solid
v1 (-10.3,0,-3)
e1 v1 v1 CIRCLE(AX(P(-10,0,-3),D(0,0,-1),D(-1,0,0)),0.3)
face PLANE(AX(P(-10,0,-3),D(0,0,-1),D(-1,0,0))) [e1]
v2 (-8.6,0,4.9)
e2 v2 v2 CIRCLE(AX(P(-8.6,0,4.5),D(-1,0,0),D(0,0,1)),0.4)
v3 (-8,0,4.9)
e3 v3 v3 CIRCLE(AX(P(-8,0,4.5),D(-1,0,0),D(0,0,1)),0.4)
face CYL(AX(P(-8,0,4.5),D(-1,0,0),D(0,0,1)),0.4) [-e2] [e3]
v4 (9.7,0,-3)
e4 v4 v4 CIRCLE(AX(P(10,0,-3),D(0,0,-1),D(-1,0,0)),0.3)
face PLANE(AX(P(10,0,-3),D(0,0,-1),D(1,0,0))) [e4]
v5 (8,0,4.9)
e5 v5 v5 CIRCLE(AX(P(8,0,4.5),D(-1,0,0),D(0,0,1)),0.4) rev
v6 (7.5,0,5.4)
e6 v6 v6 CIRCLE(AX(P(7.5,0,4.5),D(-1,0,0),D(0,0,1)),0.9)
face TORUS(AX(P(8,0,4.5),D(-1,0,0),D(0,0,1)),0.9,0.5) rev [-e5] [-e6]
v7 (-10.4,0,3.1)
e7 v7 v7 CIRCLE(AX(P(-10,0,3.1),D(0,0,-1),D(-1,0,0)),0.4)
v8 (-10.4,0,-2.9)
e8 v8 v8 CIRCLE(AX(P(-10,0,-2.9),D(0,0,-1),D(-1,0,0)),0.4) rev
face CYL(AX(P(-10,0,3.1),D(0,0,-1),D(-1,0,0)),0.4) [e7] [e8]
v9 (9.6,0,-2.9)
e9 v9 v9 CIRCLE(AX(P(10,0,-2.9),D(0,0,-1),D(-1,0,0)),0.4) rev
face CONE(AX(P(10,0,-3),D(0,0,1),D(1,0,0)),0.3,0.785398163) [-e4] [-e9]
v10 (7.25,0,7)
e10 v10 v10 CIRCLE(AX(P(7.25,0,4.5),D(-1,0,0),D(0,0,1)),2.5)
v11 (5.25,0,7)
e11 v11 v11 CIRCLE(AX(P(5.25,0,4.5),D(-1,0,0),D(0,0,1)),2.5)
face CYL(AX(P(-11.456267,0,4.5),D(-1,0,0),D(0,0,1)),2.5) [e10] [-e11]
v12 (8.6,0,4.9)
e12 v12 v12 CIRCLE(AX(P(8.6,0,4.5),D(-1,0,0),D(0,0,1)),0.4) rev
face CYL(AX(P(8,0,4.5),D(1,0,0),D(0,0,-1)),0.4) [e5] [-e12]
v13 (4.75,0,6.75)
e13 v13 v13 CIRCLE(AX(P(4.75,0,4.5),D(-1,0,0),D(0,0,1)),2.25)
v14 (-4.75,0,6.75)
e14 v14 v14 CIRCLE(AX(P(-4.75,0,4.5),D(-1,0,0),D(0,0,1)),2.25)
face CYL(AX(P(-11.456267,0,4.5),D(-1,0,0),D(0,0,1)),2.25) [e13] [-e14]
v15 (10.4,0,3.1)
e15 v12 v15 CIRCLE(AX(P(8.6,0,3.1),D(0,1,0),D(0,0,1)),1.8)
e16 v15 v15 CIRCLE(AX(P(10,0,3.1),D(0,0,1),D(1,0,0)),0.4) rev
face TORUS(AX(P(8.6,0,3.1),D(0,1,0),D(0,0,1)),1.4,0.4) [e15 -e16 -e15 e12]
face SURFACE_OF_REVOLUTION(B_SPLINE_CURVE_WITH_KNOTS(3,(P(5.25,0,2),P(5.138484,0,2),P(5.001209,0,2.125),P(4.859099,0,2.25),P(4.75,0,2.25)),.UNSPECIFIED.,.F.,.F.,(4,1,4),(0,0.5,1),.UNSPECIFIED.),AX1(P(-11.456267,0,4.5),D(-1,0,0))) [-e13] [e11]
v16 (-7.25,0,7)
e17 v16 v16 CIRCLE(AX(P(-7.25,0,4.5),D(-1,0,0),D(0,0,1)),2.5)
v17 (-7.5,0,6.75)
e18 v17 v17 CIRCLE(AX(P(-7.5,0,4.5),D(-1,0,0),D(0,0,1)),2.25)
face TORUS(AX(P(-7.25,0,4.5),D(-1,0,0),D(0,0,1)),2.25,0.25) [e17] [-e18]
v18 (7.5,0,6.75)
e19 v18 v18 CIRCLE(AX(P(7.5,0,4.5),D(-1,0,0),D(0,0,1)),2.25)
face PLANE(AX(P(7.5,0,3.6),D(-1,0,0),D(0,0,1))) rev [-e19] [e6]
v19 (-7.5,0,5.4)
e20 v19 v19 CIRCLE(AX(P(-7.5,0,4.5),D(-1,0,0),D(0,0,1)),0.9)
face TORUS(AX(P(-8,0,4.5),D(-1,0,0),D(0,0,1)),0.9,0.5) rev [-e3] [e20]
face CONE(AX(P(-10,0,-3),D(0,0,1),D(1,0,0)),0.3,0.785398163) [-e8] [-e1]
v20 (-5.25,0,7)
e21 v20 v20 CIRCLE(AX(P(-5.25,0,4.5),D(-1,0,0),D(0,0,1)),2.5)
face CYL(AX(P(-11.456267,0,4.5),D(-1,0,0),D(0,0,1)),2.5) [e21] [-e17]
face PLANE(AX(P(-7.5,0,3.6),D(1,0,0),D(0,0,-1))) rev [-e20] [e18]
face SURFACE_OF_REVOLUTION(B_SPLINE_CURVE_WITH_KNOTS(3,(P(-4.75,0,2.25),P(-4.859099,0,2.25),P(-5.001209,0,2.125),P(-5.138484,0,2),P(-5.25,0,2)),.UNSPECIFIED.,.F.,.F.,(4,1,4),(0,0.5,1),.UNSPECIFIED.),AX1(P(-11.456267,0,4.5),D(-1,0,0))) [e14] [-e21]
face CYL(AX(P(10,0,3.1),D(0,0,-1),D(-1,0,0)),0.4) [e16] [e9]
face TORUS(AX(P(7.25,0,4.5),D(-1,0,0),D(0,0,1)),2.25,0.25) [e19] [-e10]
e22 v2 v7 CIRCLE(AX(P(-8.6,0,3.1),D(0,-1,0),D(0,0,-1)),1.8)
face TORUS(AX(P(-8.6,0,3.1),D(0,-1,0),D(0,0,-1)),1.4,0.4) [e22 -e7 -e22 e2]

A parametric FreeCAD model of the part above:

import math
import FreeCAD as App
import Part
import Sketcher


def edges_at(feature, points):
    """Names of the edges that pass closest to the given points."""
    edges = feature.Shape.Edges
    near = lambda p: min(range(len(edges)), key=lambda i: edges[i].distToShape(Part.Vertex(*p))[0])
    return sorted({f"Edge{near(p) + 1}" for p in points})

doc = App.newDocument("Part")
params = doc.addObject("Spreadsheet::Sheet", "Params")
for row, (alias, value) in enumerate([
    ("sketch1_radius", "0.5 mm"),
    ("sketch1_radius2", "0.5 mm"),
    ("sketch1_width", "16 mm"),
    ("sketch1_width2", "2 mm"),
    ("sketch1_width3", "2 mm"),
    ("revolution_angle", "360 deg"),
    ("sketch2_diameter", "0.8 mm"),
    ("sketch3_radius", "1.4 mm"),
    ("sketch3_width", "0.6 mm"),
    ("sketch3_height", "6.1 mm"),
    ("chamfer_size", "0.1 mm"),
    ("chamfer2_size", "0.1 mm"),
], start=1):
    params.set(f"A{row}", alias)
    params.set(f"B{row}", "=" + value)
    params.setAlias(f"B{row}", alias)

body = doc.addObject("PartDesign::Body", "Body")

sketch1 = body.newObject("Sketcher::SketchObject", "Sketch")
sketch1.AttachmentSupport = (doc.getObject("XZ_Plane"), [""])
sketch1.MapMode = "FlatFace"
sketch1.addGeometry([
    Part.LineSegment(App.Vector(-8, 4.5, 0), App.Vector(8, 4.5, 0)),
    Part.LineSegment(App.Vector(8, 4.5, 0), App.Vector(8, 4.1, 0)),
    Part.ArcOfCircle(Part.Circle(App.Vector(8, 3.6, 0), App.Vector(0, 0, 1), 0.5), math.radians(90), math.radians(180)),
    Part.LineSegment(App.Vector(7.5, 3.6, 0), App.Vector(7.5, 2.25, 0)),
    Part.ArcOfCircle(Part.Circle(App.Vector(7.25, 2.25, 0), App.Vector(0, 0, 1), 0.25), math.radians(-90), math.radians(0)),
    Part.LineSegment(App.Vector(7.25, 2, 0), App.Vector(5.25, 2, 0)),
    Part.BSplineCurve([App.Vector(5.25, 2, 0), App.Vector(5.138484, 2, 0), App.Vector(5.001209, 2.125, 0), App.Vector(4.859099, 2.25, 0), App.Vector(4.75, 2.25, 0)], [4, 1, 4], [0, 0.5, 1], False, 3, [1, 1, 1, 1, 1], False),
    Part.LineSegment(App.Vector(4.75, 2.25, 0), App.Vector(-4.75, 2.25, 0)),
    Part.BSplineCurve([App.Vector(-5.25, 2, 0), App.Vector(-5.138484, 2, 0), App.Vector(-5.001209, 2.125, 0), App.Vector(-4.859099, 2.25, 0), App.Vector(-4.75, 2.25, 0)], [4, 1, 4], [0, 0.5, 1], False, 3, [1, 1, 1, 1, 1], False),
    Part.LineSegment(App.Vector(-5.25, 2, 0), App.Vector(-7.25, 2, 0)),
    Part.ArcOfCircle(Part.Circle(App.Vector(-7.25, 2.25, 0), App.Vector(0, 0, 1), 0.25), math.radians(-180), math.radians(-90)),
    Part.LineSegment(App.Vector(-7.5, 2.25, 0), App.Vector(-7.5, 3.6, 0)),
    Part.ArcOfCircle(Part.Circle(App.Vector(-8, 3.6, 0), App.Vector(0, 0, 1), 0.5), math.radians(0), math.radians(90)),
    Part.LineSegment(App.Vector(-8, 4.1, 0), App.Vector(-8, 4.5, 0)),
], False)
sketch1.addGeometry(Part.LineSegment(App.Vector(-8, 4.5, 0), App.Vector(8, 4.5, 0)), True)
sketch1.addConstraint([
    Sketcher.Constraint("Block", 6),
    Sketcher.Constraint("Block", 8),
    Sketcher.Constraint("Coincident", 0, 2, 1, 1),
    Sketcher.Constraint("Coincident", 1, 2, 2, 1),
    Sketcher.Constraint("Coincident", 2, 2, 3, 1),
    Sketcher.Constraint("Coincident", 3, 2, 4, 2),
    Sketcher.Constraint("Coincident", 4, 1, 5, 1),
    Sketcher.Constraint("Coincident", 5, 2, 6, 1),
    Sketcher.Constraint("Coincident", 6, 2, 7, 1),
    Sketcher.Constraint("Coincident", 7, 2, 8, 2),
    Sketcher.Constraint("Coincident", 8, 1, 9, 1),
    Sketcher.Constraint("Coincident", 9, 2, 10, 2),
    Sketcher.Constraint("Coincident", 10, 1, 11, 1),
    Sketcher.Constraint("Coincident", 11, 2, 12, 1),
    Sketcher.Constraint("Coincident", 12, 2, 13, 1),
    Sketcher.Constraint("Coincident", 13, 2, 0, 1),
    Sketcher.Constraint("Horizontal", 0),
    Sketcher.Constraint("Vertical", 1),
    Sketcher.Constraint("Vertical", 3),
    Sketcher.Constraint("Horizontal", 5),
    Sketcher.Constraint("Horizontal", 9),
    Sketcher.Constraint("Vertical", 11),
    Sketcher.Constraint("Vertical", 13),
    Sketcher.Constraint("Horizontal", 14),
    Sketcher.Constraint("Coincident", 14, 1, 13, 2),
    Sketcher.Constraint("Radius", 2, 0.5),
    Sketcher.Constraint("Radius", 12, 0.5),
    Sketcher.Constraint("DistanceX", 0, 1, 0, 2, 16.0),
    Sketcher.Constraint("DistanceX", 5, 2, 5, 1, 2.0),
    Sketcher.Constraint("DistanceX", 9, 2, 9, 1, 2.0),
    Sketcher.Constraint("DistanceX", 14, 1, 14, 2, 16.0),
    Sketcher.Constraint("Radius", 4, 0.25),
    Sketcher.Constraint("Radius", 10, 0.25),
    Sketcher.Constraint("DistanceY", 1, 2, 1, 1, 0.4),
    Sketcher.Constraint("DistanceY", 13, 1, 13, 2, 0.4),
    Sketcher.Constraint("DistanceX", -1, 1, 2, 3, 8.0),
    Sketcher.Constraint("DistanceX", 12, 3, -1, 1, 8.0),
    Sketcher.Constraint("DistanceX", -1, 1, 0, 2, 8.0),
    Sketcher.Constraint("DistanceY", 3, 2, 3, 1, 1.35),
    Sketcher.Constraint("DistanceY", 11, 1, 11, 2, 1.35),
    Sketcher.Constraint("DistanceY", -1, 1, 2, 3, 3.6),
    Sketcher.Constraint("DistanceY", -1, 1, 2, 2, 3.6),
    Sketcher.Constraint("DistanceY", -1, 1, 11, 2, 3.6),
])
sketch1.setExpression("Constraints[25]", "Params.sketch1_radius")
sketch1.setExpression("Constraints[26]", "Params.sketch1_radius2")
sketch1.setExpression("Constraints[27]", "Params.sketch1_width")
sketch1.setExpression("Constraints[28]", "Params.sketch1_width2")
sketch1.setExpression("Constraints[29]", "Params.sketch1_width3")
revolution = body.newObject("PartDesign::Revolution", "Revolution")
revolution.Profile = sketch1
revolution.ReferenceAxis = (sketch1, ["Axis0"])
revolution.setExpression("Angle", "Params.revolution_angle")

sketch2 = body.newObject("Sketcher::SketchObject", "Sketch001")
sketch2.AttachmentSupport = (doc.getObject("YZ_Plane"), [""])
sketch2.MapMode = "FlatFace"
sketch2.AttachmentOffset = App.Placement(App.Vector(0, 0, -8), App.Rotation())
sketch2.addGeometry(Part.Circle(App.Vector(0, 4.5, 0), App.Vector(0, 0, 1), 0.4), False)
sketch2.addConstraint([
    Sketcher.Constraint("PointOnObject", 0, 3, -2),
    Sketcher.Constraint("Diameter", 0, 0.8),
    Sketcher.Constraint("DistanceY", -1, 1, 0, 3, 4.5),
])
sketch2.setExpression("Constraints[1]", "Params.sketch2_diameter")

sketch3 = body.newObject("Sketcher::SketchObject", "Sketch002")
sketch3.AttachmentSupport = (doc.getObject("XZ_Plane"), [""])
sketch3.MapMode = "FlatFace"
sketch3.addGeometry([
    Part.LineSegment(App.Vector(-8, 4.5, 0), App.Vector(-8.6, 4.5, 0)),
    Part.ArcOfCircle(Part.Circle(App.Vector(-8.6, 3.1, 0), App.Vector(0, 0, 1), 1.4), math.radians(90), math.radians(180)),
    Part.LineSegment(App.Vector(-10, 3.1, 0), App.Vector(-10, -3, 0)),
], False)
sketch3.addConstraint([
    Sketcher.Constraint("Tangent", 0, 2, 1, 1),
    Sketcher.Constraint("Tangent", 1, 2, 2, 1),
    Sketcher.Constraint("Horizontal", 0),
    Sketcher.Constraint("Vertical", 2),
    Sketcher.Constraint("Radius", 1, 1.4),
    Sketcher.Constraint("DistanceX", 0, 2, 0, 1, 0.6),
    Sketcher.Constraint("DistanceY", 2, 2, 2, 1, 6.1),
    Sketcher.Constraint("DistanceX", 0, 1, -1, 1, 8.0),
    Sketcher.Constraint("DistanceY", 2, 2, -1, 1, 3.0),
])
sketch3.setExpression("Constraints[4]", "Params.sketch3_radius")
sketch3.setExpression("Constraints[5]", "Params.sketch3_width")
sketch3.setExpression("Constraints[6]", "Params.sketch3_height")
doc.recompute()

additivepipe = body.newObject("PartDesign::AdditivePipe", "AdditivePipe")
additivepipe.Profile = sketch2
additivepipe.Spine = (sketch3, ["Edge1", "Edge2", "Edge3"])
doc.recompute()

chamfer = body.newObject("PartDesign::Chamfer", "Chamfer")
chamfer.Base = (additivepipe, edges_at(additivepipe, [(-9.6, 0, -3)]))
chamfer.setExpression("Size", "Params.chamfer_size")
doc.recompute()

mirrored = body.newObject("PartDesign::Mirrored", "Mirrored")
mirrored.Originals = [additivepipe]
mirrored.MirrorPlane = (doc.getObject("YZ_Plane"), [""])
body.Tip = mirrored
doc.recompute()

chamfer2 = body.newObject("PartDesign::Chamfer", "Chamfer001")
chamfer2.Base = (mirrored, edges_at(mirrored, [(9.6, 0, -3)]))
chamfer2.setExpression("Size", "Params.chamfer2_size")

doc.recompute()
